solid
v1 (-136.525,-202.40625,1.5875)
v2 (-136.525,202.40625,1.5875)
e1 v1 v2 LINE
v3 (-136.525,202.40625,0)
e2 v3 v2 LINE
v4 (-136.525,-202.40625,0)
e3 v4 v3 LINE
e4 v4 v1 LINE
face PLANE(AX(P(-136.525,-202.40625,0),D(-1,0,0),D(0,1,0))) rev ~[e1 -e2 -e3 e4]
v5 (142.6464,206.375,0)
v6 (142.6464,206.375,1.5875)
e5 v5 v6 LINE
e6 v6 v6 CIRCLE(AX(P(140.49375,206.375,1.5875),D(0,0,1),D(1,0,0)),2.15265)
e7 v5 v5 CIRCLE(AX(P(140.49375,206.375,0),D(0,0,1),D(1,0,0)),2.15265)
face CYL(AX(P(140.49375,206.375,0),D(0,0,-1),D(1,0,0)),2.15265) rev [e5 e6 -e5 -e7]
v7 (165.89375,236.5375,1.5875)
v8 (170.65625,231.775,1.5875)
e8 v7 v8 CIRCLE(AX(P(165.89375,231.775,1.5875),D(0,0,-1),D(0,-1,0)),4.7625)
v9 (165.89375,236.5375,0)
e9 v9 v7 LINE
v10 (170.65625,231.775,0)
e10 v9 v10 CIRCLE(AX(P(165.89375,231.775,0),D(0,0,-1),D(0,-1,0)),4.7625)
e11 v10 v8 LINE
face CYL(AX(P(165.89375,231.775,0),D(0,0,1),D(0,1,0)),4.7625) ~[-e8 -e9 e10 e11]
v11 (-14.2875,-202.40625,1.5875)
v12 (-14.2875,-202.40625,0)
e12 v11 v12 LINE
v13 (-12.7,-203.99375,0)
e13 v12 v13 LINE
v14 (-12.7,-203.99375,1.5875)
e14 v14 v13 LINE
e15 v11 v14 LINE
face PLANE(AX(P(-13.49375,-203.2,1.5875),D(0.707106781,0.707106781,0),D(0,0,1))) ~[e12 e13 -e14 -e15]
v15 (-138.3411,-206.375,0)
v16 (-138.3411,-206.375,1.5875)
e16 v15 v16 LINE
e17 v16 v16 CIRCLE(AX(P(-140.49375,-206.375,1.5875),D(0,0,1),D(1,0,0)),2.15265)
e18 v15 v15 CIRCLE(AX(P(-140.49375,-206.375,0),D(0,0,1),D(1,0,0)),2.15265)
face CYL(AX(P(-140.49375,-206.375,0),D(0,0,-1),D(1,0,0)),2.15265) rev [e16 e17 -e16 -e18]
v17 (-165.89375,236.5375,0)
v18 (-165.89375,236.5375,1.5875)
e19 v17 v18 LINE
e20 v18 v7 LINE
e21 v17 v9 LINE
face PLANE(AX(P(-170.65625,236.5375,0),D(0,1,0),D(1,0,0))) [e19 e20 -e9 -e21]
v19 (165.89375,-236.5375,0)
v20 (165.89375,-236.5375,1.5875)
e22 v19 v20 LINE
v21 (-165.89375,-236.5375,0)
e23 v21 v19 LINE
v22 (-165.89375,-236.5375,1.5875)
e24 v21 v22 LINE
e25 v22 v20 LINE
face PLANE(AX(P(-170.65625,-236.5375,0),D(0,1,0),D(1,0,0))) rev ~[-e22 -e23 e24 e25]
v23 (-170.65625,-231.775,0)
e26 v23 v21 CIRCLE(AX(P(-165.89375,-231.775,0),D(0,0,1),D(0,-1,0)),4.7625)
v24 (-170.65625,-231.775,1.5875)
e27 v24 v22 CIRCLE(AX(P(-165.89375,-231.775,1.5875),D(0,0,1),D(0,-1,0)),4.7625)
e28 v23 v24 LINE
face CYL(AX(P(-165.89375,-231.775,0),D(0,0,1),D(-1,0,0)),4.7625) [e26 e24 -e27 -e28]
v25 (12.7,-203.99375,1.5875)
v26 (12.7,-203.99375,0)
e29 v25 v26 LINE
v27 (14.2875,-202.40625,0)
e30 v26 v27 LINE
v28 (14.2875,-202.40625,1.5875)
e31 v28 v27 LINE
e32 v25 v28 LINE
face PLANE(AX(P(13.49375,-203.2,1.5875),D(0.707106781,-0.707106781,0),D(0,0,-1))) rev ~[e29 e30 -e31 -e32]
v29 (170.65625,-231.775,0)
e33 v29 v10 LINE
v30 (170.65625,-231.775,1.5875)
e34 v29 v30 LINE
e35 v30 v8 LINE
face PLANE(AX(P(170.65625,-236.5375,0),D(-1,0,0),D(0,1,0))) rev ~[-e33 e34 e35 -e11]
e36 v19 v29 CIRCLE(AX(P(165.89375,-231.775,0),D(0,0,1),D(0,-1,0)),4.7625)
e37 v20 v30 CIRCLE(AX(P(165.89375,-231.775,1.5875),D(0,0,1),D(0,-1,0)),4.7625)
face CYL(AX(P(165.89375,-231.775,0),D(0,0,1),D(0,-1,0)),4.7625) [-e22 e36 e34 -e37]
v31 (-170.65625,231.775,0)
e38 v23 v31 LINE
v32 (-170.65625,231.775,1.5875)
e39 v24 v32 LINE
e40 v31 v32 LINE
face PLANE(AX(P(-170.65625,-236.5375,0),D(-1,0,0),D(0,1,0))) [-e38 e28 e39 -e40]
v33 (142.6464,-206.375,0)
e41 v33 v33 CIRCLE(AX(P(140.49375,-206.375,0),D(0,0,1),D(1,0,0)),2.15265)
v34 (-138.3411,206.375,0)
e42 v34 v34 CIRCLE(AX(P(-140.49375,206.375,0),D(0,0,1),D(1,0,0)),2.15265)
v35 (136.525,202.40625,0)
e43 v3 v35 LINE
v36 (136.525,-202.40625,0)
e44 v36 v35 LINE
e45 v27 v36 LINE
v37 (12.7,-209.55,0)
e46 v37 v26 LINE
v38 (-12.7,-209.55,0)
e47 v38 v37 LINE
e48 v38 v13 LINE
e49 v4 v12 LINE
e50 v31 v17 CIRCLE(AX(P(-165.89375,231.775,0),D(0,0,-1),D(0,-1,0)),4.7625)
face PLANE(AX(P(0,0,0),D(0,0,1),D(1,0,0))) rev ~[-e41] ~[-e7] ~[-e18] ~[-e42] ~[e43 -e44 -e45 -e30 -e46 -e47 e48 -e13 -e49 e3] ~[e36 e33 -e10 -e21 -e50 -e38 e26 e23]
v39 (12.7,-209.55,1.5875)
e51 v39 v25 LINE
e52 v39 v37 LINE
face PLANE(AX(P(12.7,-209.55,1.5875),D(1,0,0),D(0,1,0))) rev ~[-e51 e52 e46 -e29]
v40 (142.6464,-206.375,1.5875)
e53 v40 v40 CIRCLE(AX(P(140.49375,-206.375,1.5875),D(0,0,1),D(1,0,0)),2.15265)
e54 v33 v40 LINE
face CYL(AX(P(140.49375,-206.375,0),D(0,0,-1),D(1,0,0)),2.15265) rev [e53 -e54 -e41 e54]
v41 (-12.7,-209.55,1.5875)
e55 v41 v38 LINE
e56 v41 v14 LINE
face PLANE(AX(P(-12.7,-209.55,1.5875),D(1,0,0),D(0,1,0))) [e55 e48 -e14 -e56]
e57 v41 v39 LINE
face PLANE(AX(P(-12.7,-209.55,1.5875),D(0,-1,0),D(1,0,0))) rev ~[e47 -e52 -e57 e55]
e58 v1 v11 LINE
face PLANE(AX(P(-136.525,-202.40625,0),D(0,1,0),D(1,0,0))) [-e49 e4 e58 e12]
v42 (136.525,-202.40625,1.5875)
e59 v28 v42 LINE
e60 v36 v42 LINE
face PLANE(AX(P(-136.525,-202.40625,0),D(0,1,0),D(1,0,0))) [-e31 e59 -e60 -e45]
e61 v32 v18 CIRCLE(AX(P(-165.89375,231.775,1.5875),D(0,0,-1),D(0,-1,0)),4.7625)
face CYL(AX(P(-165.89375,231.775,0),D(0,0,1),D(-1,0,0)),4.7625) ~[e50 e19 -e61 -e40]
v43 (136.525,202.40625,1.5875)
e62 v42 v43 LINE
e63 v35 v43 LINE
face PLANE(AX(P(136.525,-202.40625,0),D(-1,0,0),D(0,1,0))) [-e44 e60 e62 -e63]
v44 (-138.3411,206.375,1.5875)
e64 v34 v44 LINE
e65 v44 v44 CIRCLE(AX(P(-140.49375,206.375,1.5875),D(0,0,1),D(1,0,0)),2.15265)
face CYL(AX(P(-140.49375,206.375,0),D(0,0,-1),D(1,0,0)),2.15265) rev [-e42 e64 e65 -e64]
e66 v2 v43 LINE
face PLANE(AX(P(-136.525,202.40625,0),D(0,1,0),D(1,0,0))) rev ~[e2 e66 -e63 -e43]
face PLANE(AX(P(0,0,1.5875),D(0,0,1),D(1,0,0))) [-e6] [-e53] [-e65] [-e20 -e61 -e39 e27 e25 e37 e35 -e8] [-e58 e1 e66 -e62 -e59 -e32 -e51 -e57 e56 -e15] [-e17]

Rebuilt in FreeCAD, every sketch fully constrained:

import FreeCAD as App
import Part
import Sketcher
Q = App.Units.Quantity


def edges_at(feature, points):
    """Names of the edges that pass closest to the given points."""
    edges = feature.Shape.Edges
    near = lambda p: min(range(len(edges)), key=lambda i: edges[i].distToShape(Part.Vertex(*p))[0])
    return sorted({f"Edge{near(p) + 1}" for p in points})

doc = App.newDocument("Part")
body = doc.addObject("PartDesign::Body", "Body")

# Sketch on XY plane
sketch1 = body.newObject("Sketcher::SketchObject", "Sketch")
sketch1.AttachmentSupport = (doc.getObject("XY_Plane"), [""])
sketch1.MapMode = "FlatFace"
sketch1.addGeometry(Part.LineSegment(App.Vector(-170.7, 236.5, 0), App.Vector(-170.7, -236.5, 0)), False)
sketch1.addGeometry(Part.LineSegment(App.Vector(-170.7, -236.5, 0), App.Vector(170.7, -236.5, 0)), False)
sketch1.addGeometry(Part.LineSegment(App.Vector(170.7, -236.5, 0), App.Vector(170.7, 236.5, 0)), False)
sketch1.addGeometry(Part.LineSegment(App.Vector(170.7, 236.5, 0), App.Vector(-170.7, 236.5, 0)), False)
sketch1.addGeometry(Part.Circle(App.Vector(-140.5, -206.4, 0), App.Vector(0, 0, 1), 2.2), False)
sketch1.addGeometry(Part.Circle(App.Vector(140.5, -206.4, 0), App.Vector(0, 0, 1), 2.2), False)
sketch1.addGeometry(Part.Circle(App.Vector(-140.5, 206.4, 0), App.Vector(0, 0, 1), 2.2), False)
sketch1.addGeometry(Part.LineSegment(App.Vector(136.5, -202.4, 0), App.Vector(-136.5, -202.4, 0)), False)
sketch1.addGeometry(Part.LineSegment(App.Vector(-136.5, -202.4, 0), App.Vector(-136.5, 202.4, 0)), False)
sketch1.addGeometry(Part.LineSegment(App.Vector(-136.5, 202.4, 0), App.Vector(136.5, 202.4, 0)), False)
sketch1.addGeometry(Part.LineSegment(App.Vector(136.5, 202.4, 0), App.Vector(136.5, -202.4, 0)), False)
sketch1.addGeometry(Part.Circle(App.Vector(140.5, 206.4, 0), App.Vector(0, 0, 1), 2.2), False)
sketch1.addConstraint(Sketcher.Constraint("Coincident", 0, 2, 1, 1))
sketch1.addConstraint(Sketcher.Constraint("Coincident", 1, 2, 2, 1))
sketch1.addConstraint(Sketcher.Constraint("Coincident", 2, 2, 3, 1))
sketch1.addConstraint(Sketcher.Constraint("Coincident", 3, 2, 0, 1))
sketch1.addConstraint(Sketcher.Constraint("Coincident", 7, 2, 8, 1))
sketch1.addConstraint(Sketcher.Constraint("Coincident", 8, 2, 9, 1))
sketch1.addConstraint(Sketcher.Constraint("Coincident", 9, 2, 10, 1))
sketch1.addConstraint(Sketcher.Constraint("Coincident", 10, 2, 7, 1))
sketch1.addConstraint(Sketcher.Constraint("Vertical", 0))
sketch1.addConstraint(Sketcher.Constraint("Horizontal", 1))
sketch1.addConstraint(Sketcher.Constraint("Vertical", 2))
sketch1.addConstraint(Sketcher.Constraint("Horizontal", 3))
sketch1.addConstraint(Sketcher.Constraint("Horizontal", 7))
sketch1.addConstraint(Sketcher.Constraint("Vertical", 8))
sketch1.addConstraint(Sketcher.Constraint("Horizontal", 9))
sketch1.addConstraint(Sketcher.Constraint("Vertical", 10))
sketch1.addConstraint(Sketcher.Constraint("Equal", 4, 5))
sketch1.addConstraint(Sketcher.Constraint("Equal", 5, 6))
sketch1.addConstraint(Sketcher.Constraint("Equal", 6, 11))
sketch1.addConstraint(Sketcher.Constraint("Symmetric", 5, 3, 6, 3, -1, 1))
sketch1.addConstraint(Sketcher.Constraint("Symmetric", 4, 3, 11, 3, -1, 1))
sketch1.addConstraint(Sketcher.Constraint("Symmetric", 0, 2, 2, 2, -1, 1))
sketch1.addConstraint(Sketcher.Constraint("Symmetric", 7, 2, 9, 2, -1, 1))
sketch1.addConstraint(Sketcher.Constraint("Symmetric", 4, 3, 5, 3, -2))
sketch1.addConstraint(Sketcher.Constraint("Diameter", 4, Q("0.1695 in")))
sketch1.addConstraint(Sketcher.Constraint("DistanceX", 7, 2, 7, 1, Q("10.75 in")))
sketch1.addConstraint(Sketcher.Constraint("DistanceX", 1, 1, 1, 2, Q("13.4375 in")))
sketch1.addConstraint(Sketcher.Constraint("DistanceY", 0, 2, 0, 1, Q("18.625 in")))
sketch1.addConstraint(Sketcher.Constraint("DistanceY", 8, 1, 8, 2, Q("15.9375 in")))
sketch1.addConstraint(Sketcher.Constraint("DistanceY", 4, 3, 6, 3, Q("16.25 in")))
sketch1.addConstraint(Sketcher.Constraint("DistanceX", 0, 2, 5, 3, Q("12.25 in")))
pad1 = body.newObject("PartDesign::Pad", "Pad")
pad1.Profile = sketch1
pad1.Length = Q("0.0625 in")
doc.recompute()

fillet = body.newObject("PartDesign::Fillet", "Fillet")
fillet.Base = (pad1, edges_at(pad1, [
    (-170.656, 236.537, 0.794),
    (170.656, 236.537, 0.794),
    (170.656, -236.537, 0.794),
    (-170.656, -236.537, 0.794),
]))
fillet.Radius = Q("0.1875 in")

# Sketch on XY plane
sketch2 = body.newObject("Sketcher::SketchObject", "Sketch001")
sketch2.AttachmentSupport = (doc.getObject("XY_Plane"), [""])
sketch2.MapMode = "FlatFace"
sketch2.AttachmentOffset = App.Placement(App.Vector(0, 0, 0.0625 * 25.4), App.Rotation())
sketch2.addGeometry(Part.LineSegment(App.Vector(-13, -202, 0), App.Vector(-13, -210, 0)), False)
sketch2.addGeometry(Part.LineSegment(App.Vector(-13, -210, 0), App.Vector(13, -210, 0)), False)
sketch2.addGeometry(Part.LineSegment(App.Vector(13, -210, 0), App.Vector(13, -202, 0)), False)
sketch2.addGeometry(Part.LineSegment(App.Vector(13, -202, 0), App.Vector(-13, -202, 0)), False)
sketch2.addConstraint(Sketcher.Constraint("Coincident", 0, 2, 1, 1))
sketch2.addConstraint(Sketcher.Constraint("Coincident", 1, 2, 2, 1))
sketch2.addConstraint(Sketcher.Constraint("Coincident", 2, 2, 3, 1))
sketch2.addConstraint(Sketcher.Constraint("Coincident", 3, 2, 0, 1))
sketch2.addConstraint(Sketcher.Constraint("Vertical", 0))
sketch2.addConstraint(Sketcher.Constraint("Horizontal", 1))
sketch2.addConstraint(Sketcher.Constraint("Vertical", 2))
sketch2.addConstraint(Sketcher.Constraint("Horizontal", 3))
sketch2.addConstraint(Sketcher.Constraint("DistanceX", 1, 1, 1, 2, Q("1 in")))
sketch2.addConstraint(Sketcher.Constraint("DistanceX", 0, 2, -1, 1, Q("0.5 in")))
sketch2.addConstraint(Sketcher.Constraint("DistanceY", 0, 2, 0, 1, Q("0.28125 in")))
sketch2.addConstraint(Sketcher.Constraint("DistanceY", 0, 2, -1, 1, Q("8.25 in")))
pocket1 = body.newObject("PartDesign::Pocket", "Pocket")
pocket1.Profile = sketch2
pocket1.Type = "ThroughAll"
doc.recompute()

chamfer = body.newObject("PartDesign::Chamfer", "Chamfer")
chamfer.Base = (pocket1, edges_at(pocket1, [(12.7, -202.406, 0.794), (-12.7, -202.406, 0.794)]))
chamfer.Size = Q("0.0625 in")

doc.recompute()
